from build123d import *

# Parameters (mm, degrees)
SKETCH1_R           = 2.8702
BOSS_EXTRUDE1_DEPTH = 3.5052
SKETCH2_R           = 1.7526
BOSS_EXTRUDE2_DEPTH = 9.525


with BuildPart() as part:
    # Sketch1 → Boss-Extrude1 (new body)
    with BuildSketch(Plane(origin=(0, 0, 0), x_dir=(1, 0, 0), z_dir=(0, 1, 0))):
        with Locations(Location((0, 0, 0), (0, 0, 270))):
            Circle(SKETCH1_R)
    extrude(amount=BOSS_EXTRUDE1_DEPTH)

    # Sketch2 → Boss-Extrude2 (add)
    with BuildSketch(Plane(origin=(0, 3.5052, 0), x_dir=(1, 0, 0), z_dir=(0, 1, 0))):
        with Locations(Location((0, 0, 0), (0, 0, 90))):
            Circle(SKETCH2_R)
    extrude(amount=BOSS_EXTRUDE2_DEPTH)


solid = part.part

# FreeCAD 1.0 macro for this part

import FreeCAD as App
import Part
import Sketcher

V = App.Vector
Q = App.Units.Quantity

doc = App.newDocument("Part")
body = doc.addObject("PartDesign::Body", "Body")

sketch1 = body.newObject("Sketcher::SketchObject", "Sketch")
sketch1.AttachmentSupport = (doc.getObject("XZ_Plane"), [""])
sketch1.MapMode = "FlatFace"
sketch1.addGeometry(Part.Circle(V(0, 0, 0), V(0, 0, 1), 2.8702), False)
sketch1.addConstraint([
    Sketcher.Constraint("Coincident", 0, 3, -1, 1),
    Sketcher.Constraint("Diameter", 0, Q("0.226 in")),
])
pad1 = body.newObject("PartDesign::Pad", "Pad")
pad1.Profile = sketch1
pad1.Length = Q("0.138 in")
pad1.Reversed = True

sketch2 = body.newObject("Sketcher::SketchObject", "Sketch001")
sketch2.AttachmentSupport = (doc.getObject("XZ_Plane"), [""])
sketch2.MapMode = "FlatFace"
sketch2.AttachmentOffset = App.Placement(V(0, 0, -0.138 * 25.4), App.Rotation())
sketch2.addGeometry(Part.Circle(V(0, 0, 0), V(0, 0, 1), 1.7526), False)
sketch2.addConstraint([
    Sketcher.Constraint("Coincident", 0, 3, -1, 1),
    Sketcher.Constraint("Diameter", 0, Q("0.138 in")),
])
pad2 = body.newObject("PartDesign::Pad", "Pad001")
pad2.Profile = sketch2
pad2.Length = Q("0.375 in")
pad2.Reversed = True

doc.recompute()
